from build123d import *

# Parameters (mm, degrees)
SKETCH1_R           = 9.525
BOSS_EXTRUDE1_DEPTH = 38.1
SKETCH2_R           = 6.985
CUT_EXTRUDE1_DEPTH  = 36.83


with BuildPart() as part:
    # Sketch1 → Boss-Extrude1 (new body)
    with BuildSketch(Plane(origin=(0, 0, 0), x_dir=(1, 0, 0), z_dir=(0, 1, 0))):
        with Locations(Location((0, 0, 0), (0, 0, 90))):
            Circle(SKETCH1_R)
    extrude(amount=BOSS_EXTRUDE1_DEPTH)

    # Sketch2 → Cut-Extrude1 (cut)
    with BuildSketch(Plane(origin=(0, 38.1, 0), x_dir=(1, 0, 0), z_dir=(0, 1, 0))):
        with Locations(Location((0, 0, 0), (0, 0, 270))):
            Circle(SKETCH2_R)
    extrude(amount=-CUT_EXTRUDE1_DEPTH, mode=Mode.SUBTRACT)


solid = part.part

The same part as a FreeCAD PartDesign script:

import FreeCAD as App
import Part
import Sketcher

V = App.Vector
Q = App.Units.Quantity

doc = App.newDocument("Part")
params = doc.addObject("Spreadsheet::Sheet", "Params")
for row, (alias, value) in enumerate([
    ("sketch1_diameter", "0.75 in"),
    ("pad1_length", "1.5 in"),
    ("sketch2_diameter", "0.55 in"),
    ("pocket1_length", "1.45 in"),
], start=1):
    params.set(f"A{row}", alias)
    params.set(f"B{row}", "=" + value)
    params.setAlias(f"B{row}", alias)

body = doc.addObject("PartDesign::Body", "Body")

# Sketch on XZ plane
sketch1 = body.newObject("Sketcher::SketchObject", "Sketch")
sketch1.AttachmentSupport = (doc.getObject("XZ_Plane"), [""])
sketch1.MapMode = "FlatFace"
sketch1.addGeometry(Part.Circle(V(0, 0, 0), V(0, 0, 1), 10), False)
sketch1.addConstraint(Sketcher.Constraint("Coincident", 0, 3, -1, 1))
sketch1.addConstraint(Sketcher.Constraint("Diameter", 0, Q("0.75 in")))
sketch1.setExpression("Constraints[1]", "Params.sketch1_diameter")
pad1 = body.newObject("PartDesign::Pad", "Pad")
pad1.Profile = sketch1
pad1.setExpression("Length", "Params.pad1_length")
pad1.Reversed = True

# Sketch on XZ plane
sketch2 = body.newObject("Sketcher::SketchObject", "Sketch001")
sketch2.AttachmentSupport = (doc.getObject("XZ_Plane"), [""])
sketch2.MapMode = "FlatFace"
sketch2.AttachmentOffset = App.Placement(V(0, 0, -1.5 * 25.4), App.Rotation())
sketch2.addGeometry(Part.Circle(V(0, 0, 0), V(0, 0, 1), 7), False)
sketch2.addConstraint(Sketcher.Constraint("Coincident", 0, 3, -1, 1))
sketch2.addConstraint(Sketcher.Constraint("Diameter", 0, Q("0.55 in")))
sketch2.setExpression("Constraints[1]", "Params.sketch2_diameter")
pocket1 = body.newObject("PartDesign::Pocket", "Pocket")
pocket1.Profile = sketch2
pocket1.setExpression("Length", "Params.pocket1_length")
pocket1.Reversed = True

doc.recompute()
